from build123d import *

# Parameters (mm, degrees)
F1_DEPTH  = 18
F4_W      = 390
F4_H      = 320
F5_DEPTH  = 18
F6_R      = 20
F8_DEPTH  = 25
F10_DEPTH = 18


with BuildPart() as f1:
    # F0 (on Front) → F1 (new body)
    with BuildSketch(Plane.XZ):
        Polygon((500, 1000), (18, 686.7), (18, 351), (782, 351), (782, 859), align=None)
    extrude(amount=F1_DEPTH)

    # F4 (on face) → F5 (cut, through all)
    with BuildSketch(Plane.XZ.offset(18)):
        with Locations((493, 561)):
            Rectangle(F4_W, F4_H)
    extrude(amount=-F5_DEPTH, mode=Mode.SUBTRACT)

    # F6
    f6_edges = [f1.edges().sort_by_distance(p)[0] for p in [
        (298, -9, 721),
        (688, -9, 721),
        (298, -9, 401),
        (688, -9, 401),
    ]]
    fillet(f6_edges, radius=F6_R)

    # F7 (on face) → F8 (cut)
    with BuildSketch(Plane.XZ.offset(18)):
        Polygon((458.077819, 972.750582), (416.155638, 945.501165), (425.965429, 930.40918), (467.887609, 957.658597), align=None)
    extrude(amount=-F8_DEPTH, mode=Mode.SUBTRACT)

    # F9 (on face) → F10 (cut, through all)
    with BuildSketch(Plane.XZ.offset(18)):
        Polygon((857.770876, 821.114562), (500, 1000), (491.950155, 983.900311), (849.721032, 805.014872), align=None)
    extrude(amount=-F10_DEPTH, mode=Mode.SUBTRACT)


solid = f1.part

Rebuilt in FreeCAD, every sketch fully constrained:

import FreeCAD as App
import Part
import Sketcher
from FreeCAD import Vector


def edges_at(feature, points):
    """Names of the edges that pass closest to the given points."""
    edges = feature.Shape.Edges
    near = lambda p: min(range(len(edges)), key=lambda i: edges[i].distToShape(Part.Vertex(*p))[0])
    return sorted({f"Edge{near(p) + 1}" for p in points})

doc = App.newDocument("Part")
body = doc.addObject("PartDesign::Body", "Body")

# Sketch on XZ plane
sketch1 = doc.addObject("Sketcher::SketchObject", "Sketch")
body.addObject(sketch1)
sketch1.AttachmentSupport = (doc.XZ_Plane, [""])
sketch1.MapMode = "FlatFace"
sketch1.addGeometry(Part.LineSegment(Vector(500, 1000, 0), Vector(18, 687, 0)), False)
sketch1.addGeometry(Part.LineSegment(Vector(18, 687, 0), Vector(18, 351, 0)), False)
sketch1.addGeometry(Part.LineSegment(Vector(18, 351, 0), Vector(782, 351, 0)), False)
sketch1.addGeometry(Part.LineSegment(Vector(782, 351, 0), Vector(782, 859, 0)), False)
sketch1.addGeometry(Part.LineSegment(Vector(782, 859, 0), Vector(500, 1000, 0)), False)
sketch1.addConstraint(Sketcher.Constraint("Coincident", 0, 2, 1, 1))
sketch1.addConstraint(Sketcher.Constraint("Coincident", 1, 2, 2, 1))
sketch1.addConstraint(Sketcher.Constraint("Coincident", 2, 2, 3, 1))
sketch1.addConstraint(Sketcher.Constraint("Coincident", 3, 2, 4, 1))
sketch1.addConstraint(Sketcher.Constraint("Coincident", 4, 2, 0, 1))
sketch1.addConstraint(Sketcher.Constraint("Vertical", 1))
sketch1.addConstraint(Sketcher.Constraint("Horizontal", 2))
sketch1.addConstraint(Sketcher.Constraint("Vertical", 3))
sketch1.addConstraint(Sketcher.Constraint("DistanceX", 2, 1, 2, 2, 764.0))
sketch1.addConstraint(Sketcher.Constraint("DistanceY", 3, 1, 3, 2, 508.0))
sketch1.addConstraint(Sketcher.Constraint("DistanceY", 1, 2, 1, 1, 335.7))
sketch1.addConstraint(Sketcher.Constraint("DistanceX", -1, 1, 0, 2, 18.0))
sketch1.addConstraint(Sketcher.Constraint("DistanceY", -1, 1, 1, 2, 351.0))
sketch1.addConstraint(Sketcher.Constraint("DistanceX", -1, 1, 4, 2, 500.0))
sketch1.addConstraint(Sketcher.Constraint("DistanceY", -1, 1, 4, 2, 1000.0))
pad1 = doc.addObject("PartDesign::Pad", "Pad")
body.addObject(pad1)
pad1.Profile = sketch1
pad1.Length = 18

# Sketch on XZ plane
sketch2 = doc.addObject("Sketcher::SketchObject", "Sketch001")
body.addObject(sketch2)
sketch2.AttachmentSupport = (doc.XZ_Plane, [""])
sketch2.MapMode = "FlatFace"
sketch2.AttachmentOffset = App.Placement(Vector(0, 0, 18), App.Rotation())
sketch2.addGeometry(Part.LineSegment(Vector(298, 721, 0), Vector(298, 401, 0)), False)
sketch2.addGeometry(Part.LineSegment(Vector(298, 401, 0), Vector(688, 401, 0)), False)
sketch2.addGeometry(Part.LineSegment(Vector(688, 401, 0), Vector(688, 721, 0)), False)
sketch2.addGeometry(Part.LineSegment(Vector(688, 721, 0), Vector(298, 721, 0)), False)
sketch2.addConstraint(Sketcher.Constraint("Coincident", 0, 2, 1, 1))
sketch2.addConstraint(Sketcher.Constraint("Coincident", 1, 2, 2, 1))
sketch2.addConstraint(Sketcher.Constraint("Coincident", 2, 2, 3, 1))
sketch2.addConstraint(Sketcher.Constraint("Coincident", 3, 2, 0, 1))
sketch2.addConstraint(Sketcher.Constraint("Vertical", 0))
sketch2.addConstraint(Sketcher.Constraint("Horizontal", 1))
sketch2.addConstraint(Sketcher.Constraint("Vertical", 2))
sketch2.addConstraint(Sketcher.Constraint("Horizontal", 3))
sketch2.addConstraint(Sketcher.Constraint("DistanceX", 1, 1, 1, 2, 390.0))
sketch2.addConstraint(Sketcher.Constraint("DistanceY", 0, 2, 0, 1, 320.0))
sketch2.addConstraint(Sketcher.Constraint("DistanceX", -1, 1, 0, 2, 298.0))
sketch2.addConstraint(Sketcher.Constraint("DistanceY", -1, 1, 0, 2, 401.0))
pocket1 = doc.addObject("PartDesign::Pocket", "Pocket")
body.addObject(pocket1)
pocket1.Profile = sketch2
pocket1.Type = "ThroughAll"
doc.recompute()

fillet = doc.addObject("PartDesign::Fillet", "Fillet")
body.addObject(fillet)
fillet.Base = (pocket1, edges_at(pocket1, [
    (298, -9, 721),
    (688, -9, 721),
    (298, -9, 401),
    (688, -9, 401),
]))
fillet.Radius = 20

# Sketch on XZ plane
sketch3 = doc.addObject("Sketcher::SketchObject", "Sketch002")
body.addObject(sketch3)
sketch3.AttachmentSupport = (doc.XZ_Plane, [""])
sketch3.MapMode = "FlatFace"
sketch3.AttachmentOffset = App.Placement(Vector(0, 0, 18), App.Rotation())
sketch3.addGeometry(Part.LineSegment(Vector(458, 973, 0), Vector(416, 946, 0)), False)
sketch3.addGeometry(Part.LineSegment(Vector(416, 946, 0), Vector(426, 930, 0)), False)
sketch3.addGeometry(Part.LineSegment(Vector(426, 930, 0), Vector(468, 958, 0)), False)
sketch3.addGeometry(Part.LineSegment(Vector(468, 958, 0), Vector(458, 973, 0)), False)
sketch3.addConstraint(Sketcher.Constraint("Coincident", 0, 2, 1, 1))
sketch3.addConstraint(Sketcher.Constraint("Coincident", 1, 2, 2, 1))
sketch3.addConstraint(Sketcher.Constraint("Coincident", 2, 2, 3, 1))
sketch3.addConstraint(Sketcher.Constraint("Coincident", 3, 2, 0, 1))
sketch3.addConstraint(Sketcher.Constraint("Perpendicular", 0, 1))
sketch3.addConstraint(Sketcher.Constraint("Perpendicular", 1, 2))
sketch3.addConstraint(Sketcher.Constraint("Perpendicular", 2, 3))
sketch3.addConstraint(Sketcher.Constraint("Distance", 0, 50.0))
sketch3.addConstraint(Sketcher.Constraint("Distance", 1, 18.0))
sketch3.addConstraint(Sketcher.Constraint("DistanceX", -1, 1, 0, 2, 416.155638))
sketch3.addConstraint(Sketcher.Constraint("DistanceX", -1, 1, 1, 2, 425.965429))
sketch3.addConstraint(Sketcher.Constraint("DistanceY", -1, 1, 1, 2, 930.40918))
pocket2 = doc.addObject("PartDesign::Pocket", "Pocket001")
body.addObject(pocket2)
pocket2.Profile = sketch3
pocket2.Length = 25

# Sketch on XZ plane
sketch4 = doc.addObject("Sketcher::SketchObject", "Sketch003")
body.addObject(sketch4)
sketch4.AttachmentSupport = (doc.XZ_Plane, [""])
sketch4.MapMode = "FlatFace"
sketch4.AttachmentOffset = App.Placement(Vector(0, 0, 18), App.Rotation())
sketch4.addGeometry(Part.LineSegment(Vector(857.770876, 821.114562, 0), Vector(500, 1000, 0)), False)
sketch4.addGeometry(Part.LineSegment(Vector(500, 1000, 0), Vector(491.950155, 983.900311, 0)), False)
sketch4.addGeometry(Part.LineSegment(Vector(491.950155, 983.900311, 0), Vector(849.721032, 805.014872, 0)), False)
sketch4.addGeometry(Part.LineSegment(Vector(849.721032, 805.014872, 0), Vector(857.770876, 821.114562, 0)), False)
sketch4.addConstraint(Sketcher.Constraint("Coincident", 0, 2, 1, 1))
sketch4.addConstraint(Sketcher.Constraint("Coincident", 1, 2, 2, 1))
sketch4.addConstraint(Sketcher.Constraint("Coincident", 2, 2, 3, 1))
sketch4.addConstraint(Sketcher.Constraint("Coincident", 3, 2, 0, 1))
sketch4.addConstraint(Sketcher.Constraint("Perpendicular", 0, 1))
sketch4.addConstraint(Sketcher.Constraint("Perpendicular", 1, 2))
sketch4.addConstraint(Sketcher.Constraint("Perpendicular", 2, 3))
sketch4.addConstraint(Sketcher.Constraint("Distance", 0, 400.0))
sketch4.addConstraint(Sketcher.Constraint("Distance", 1, 18.0))
sketch4.addConstraint(Sketcher.Constraint("DistanceX", -1, 1, 0, 2, 500.0))
sketch4.addConstraint(Sketcher.Constraint("DistanceY", -1, 1, 0, 2, 1000.0))
sketch4.addConstraint(Sketcher.Constraint("DistanceY", -1, 1, 1, 2, 983.900311))
pocket3 = doc.addObject("PartDesign::Pocket", "Pocket002")
body.addObject(pocket3)
pocket3.Profile = sketch4
pocket3.Type = "ThroughAll"

doc.recompute()
